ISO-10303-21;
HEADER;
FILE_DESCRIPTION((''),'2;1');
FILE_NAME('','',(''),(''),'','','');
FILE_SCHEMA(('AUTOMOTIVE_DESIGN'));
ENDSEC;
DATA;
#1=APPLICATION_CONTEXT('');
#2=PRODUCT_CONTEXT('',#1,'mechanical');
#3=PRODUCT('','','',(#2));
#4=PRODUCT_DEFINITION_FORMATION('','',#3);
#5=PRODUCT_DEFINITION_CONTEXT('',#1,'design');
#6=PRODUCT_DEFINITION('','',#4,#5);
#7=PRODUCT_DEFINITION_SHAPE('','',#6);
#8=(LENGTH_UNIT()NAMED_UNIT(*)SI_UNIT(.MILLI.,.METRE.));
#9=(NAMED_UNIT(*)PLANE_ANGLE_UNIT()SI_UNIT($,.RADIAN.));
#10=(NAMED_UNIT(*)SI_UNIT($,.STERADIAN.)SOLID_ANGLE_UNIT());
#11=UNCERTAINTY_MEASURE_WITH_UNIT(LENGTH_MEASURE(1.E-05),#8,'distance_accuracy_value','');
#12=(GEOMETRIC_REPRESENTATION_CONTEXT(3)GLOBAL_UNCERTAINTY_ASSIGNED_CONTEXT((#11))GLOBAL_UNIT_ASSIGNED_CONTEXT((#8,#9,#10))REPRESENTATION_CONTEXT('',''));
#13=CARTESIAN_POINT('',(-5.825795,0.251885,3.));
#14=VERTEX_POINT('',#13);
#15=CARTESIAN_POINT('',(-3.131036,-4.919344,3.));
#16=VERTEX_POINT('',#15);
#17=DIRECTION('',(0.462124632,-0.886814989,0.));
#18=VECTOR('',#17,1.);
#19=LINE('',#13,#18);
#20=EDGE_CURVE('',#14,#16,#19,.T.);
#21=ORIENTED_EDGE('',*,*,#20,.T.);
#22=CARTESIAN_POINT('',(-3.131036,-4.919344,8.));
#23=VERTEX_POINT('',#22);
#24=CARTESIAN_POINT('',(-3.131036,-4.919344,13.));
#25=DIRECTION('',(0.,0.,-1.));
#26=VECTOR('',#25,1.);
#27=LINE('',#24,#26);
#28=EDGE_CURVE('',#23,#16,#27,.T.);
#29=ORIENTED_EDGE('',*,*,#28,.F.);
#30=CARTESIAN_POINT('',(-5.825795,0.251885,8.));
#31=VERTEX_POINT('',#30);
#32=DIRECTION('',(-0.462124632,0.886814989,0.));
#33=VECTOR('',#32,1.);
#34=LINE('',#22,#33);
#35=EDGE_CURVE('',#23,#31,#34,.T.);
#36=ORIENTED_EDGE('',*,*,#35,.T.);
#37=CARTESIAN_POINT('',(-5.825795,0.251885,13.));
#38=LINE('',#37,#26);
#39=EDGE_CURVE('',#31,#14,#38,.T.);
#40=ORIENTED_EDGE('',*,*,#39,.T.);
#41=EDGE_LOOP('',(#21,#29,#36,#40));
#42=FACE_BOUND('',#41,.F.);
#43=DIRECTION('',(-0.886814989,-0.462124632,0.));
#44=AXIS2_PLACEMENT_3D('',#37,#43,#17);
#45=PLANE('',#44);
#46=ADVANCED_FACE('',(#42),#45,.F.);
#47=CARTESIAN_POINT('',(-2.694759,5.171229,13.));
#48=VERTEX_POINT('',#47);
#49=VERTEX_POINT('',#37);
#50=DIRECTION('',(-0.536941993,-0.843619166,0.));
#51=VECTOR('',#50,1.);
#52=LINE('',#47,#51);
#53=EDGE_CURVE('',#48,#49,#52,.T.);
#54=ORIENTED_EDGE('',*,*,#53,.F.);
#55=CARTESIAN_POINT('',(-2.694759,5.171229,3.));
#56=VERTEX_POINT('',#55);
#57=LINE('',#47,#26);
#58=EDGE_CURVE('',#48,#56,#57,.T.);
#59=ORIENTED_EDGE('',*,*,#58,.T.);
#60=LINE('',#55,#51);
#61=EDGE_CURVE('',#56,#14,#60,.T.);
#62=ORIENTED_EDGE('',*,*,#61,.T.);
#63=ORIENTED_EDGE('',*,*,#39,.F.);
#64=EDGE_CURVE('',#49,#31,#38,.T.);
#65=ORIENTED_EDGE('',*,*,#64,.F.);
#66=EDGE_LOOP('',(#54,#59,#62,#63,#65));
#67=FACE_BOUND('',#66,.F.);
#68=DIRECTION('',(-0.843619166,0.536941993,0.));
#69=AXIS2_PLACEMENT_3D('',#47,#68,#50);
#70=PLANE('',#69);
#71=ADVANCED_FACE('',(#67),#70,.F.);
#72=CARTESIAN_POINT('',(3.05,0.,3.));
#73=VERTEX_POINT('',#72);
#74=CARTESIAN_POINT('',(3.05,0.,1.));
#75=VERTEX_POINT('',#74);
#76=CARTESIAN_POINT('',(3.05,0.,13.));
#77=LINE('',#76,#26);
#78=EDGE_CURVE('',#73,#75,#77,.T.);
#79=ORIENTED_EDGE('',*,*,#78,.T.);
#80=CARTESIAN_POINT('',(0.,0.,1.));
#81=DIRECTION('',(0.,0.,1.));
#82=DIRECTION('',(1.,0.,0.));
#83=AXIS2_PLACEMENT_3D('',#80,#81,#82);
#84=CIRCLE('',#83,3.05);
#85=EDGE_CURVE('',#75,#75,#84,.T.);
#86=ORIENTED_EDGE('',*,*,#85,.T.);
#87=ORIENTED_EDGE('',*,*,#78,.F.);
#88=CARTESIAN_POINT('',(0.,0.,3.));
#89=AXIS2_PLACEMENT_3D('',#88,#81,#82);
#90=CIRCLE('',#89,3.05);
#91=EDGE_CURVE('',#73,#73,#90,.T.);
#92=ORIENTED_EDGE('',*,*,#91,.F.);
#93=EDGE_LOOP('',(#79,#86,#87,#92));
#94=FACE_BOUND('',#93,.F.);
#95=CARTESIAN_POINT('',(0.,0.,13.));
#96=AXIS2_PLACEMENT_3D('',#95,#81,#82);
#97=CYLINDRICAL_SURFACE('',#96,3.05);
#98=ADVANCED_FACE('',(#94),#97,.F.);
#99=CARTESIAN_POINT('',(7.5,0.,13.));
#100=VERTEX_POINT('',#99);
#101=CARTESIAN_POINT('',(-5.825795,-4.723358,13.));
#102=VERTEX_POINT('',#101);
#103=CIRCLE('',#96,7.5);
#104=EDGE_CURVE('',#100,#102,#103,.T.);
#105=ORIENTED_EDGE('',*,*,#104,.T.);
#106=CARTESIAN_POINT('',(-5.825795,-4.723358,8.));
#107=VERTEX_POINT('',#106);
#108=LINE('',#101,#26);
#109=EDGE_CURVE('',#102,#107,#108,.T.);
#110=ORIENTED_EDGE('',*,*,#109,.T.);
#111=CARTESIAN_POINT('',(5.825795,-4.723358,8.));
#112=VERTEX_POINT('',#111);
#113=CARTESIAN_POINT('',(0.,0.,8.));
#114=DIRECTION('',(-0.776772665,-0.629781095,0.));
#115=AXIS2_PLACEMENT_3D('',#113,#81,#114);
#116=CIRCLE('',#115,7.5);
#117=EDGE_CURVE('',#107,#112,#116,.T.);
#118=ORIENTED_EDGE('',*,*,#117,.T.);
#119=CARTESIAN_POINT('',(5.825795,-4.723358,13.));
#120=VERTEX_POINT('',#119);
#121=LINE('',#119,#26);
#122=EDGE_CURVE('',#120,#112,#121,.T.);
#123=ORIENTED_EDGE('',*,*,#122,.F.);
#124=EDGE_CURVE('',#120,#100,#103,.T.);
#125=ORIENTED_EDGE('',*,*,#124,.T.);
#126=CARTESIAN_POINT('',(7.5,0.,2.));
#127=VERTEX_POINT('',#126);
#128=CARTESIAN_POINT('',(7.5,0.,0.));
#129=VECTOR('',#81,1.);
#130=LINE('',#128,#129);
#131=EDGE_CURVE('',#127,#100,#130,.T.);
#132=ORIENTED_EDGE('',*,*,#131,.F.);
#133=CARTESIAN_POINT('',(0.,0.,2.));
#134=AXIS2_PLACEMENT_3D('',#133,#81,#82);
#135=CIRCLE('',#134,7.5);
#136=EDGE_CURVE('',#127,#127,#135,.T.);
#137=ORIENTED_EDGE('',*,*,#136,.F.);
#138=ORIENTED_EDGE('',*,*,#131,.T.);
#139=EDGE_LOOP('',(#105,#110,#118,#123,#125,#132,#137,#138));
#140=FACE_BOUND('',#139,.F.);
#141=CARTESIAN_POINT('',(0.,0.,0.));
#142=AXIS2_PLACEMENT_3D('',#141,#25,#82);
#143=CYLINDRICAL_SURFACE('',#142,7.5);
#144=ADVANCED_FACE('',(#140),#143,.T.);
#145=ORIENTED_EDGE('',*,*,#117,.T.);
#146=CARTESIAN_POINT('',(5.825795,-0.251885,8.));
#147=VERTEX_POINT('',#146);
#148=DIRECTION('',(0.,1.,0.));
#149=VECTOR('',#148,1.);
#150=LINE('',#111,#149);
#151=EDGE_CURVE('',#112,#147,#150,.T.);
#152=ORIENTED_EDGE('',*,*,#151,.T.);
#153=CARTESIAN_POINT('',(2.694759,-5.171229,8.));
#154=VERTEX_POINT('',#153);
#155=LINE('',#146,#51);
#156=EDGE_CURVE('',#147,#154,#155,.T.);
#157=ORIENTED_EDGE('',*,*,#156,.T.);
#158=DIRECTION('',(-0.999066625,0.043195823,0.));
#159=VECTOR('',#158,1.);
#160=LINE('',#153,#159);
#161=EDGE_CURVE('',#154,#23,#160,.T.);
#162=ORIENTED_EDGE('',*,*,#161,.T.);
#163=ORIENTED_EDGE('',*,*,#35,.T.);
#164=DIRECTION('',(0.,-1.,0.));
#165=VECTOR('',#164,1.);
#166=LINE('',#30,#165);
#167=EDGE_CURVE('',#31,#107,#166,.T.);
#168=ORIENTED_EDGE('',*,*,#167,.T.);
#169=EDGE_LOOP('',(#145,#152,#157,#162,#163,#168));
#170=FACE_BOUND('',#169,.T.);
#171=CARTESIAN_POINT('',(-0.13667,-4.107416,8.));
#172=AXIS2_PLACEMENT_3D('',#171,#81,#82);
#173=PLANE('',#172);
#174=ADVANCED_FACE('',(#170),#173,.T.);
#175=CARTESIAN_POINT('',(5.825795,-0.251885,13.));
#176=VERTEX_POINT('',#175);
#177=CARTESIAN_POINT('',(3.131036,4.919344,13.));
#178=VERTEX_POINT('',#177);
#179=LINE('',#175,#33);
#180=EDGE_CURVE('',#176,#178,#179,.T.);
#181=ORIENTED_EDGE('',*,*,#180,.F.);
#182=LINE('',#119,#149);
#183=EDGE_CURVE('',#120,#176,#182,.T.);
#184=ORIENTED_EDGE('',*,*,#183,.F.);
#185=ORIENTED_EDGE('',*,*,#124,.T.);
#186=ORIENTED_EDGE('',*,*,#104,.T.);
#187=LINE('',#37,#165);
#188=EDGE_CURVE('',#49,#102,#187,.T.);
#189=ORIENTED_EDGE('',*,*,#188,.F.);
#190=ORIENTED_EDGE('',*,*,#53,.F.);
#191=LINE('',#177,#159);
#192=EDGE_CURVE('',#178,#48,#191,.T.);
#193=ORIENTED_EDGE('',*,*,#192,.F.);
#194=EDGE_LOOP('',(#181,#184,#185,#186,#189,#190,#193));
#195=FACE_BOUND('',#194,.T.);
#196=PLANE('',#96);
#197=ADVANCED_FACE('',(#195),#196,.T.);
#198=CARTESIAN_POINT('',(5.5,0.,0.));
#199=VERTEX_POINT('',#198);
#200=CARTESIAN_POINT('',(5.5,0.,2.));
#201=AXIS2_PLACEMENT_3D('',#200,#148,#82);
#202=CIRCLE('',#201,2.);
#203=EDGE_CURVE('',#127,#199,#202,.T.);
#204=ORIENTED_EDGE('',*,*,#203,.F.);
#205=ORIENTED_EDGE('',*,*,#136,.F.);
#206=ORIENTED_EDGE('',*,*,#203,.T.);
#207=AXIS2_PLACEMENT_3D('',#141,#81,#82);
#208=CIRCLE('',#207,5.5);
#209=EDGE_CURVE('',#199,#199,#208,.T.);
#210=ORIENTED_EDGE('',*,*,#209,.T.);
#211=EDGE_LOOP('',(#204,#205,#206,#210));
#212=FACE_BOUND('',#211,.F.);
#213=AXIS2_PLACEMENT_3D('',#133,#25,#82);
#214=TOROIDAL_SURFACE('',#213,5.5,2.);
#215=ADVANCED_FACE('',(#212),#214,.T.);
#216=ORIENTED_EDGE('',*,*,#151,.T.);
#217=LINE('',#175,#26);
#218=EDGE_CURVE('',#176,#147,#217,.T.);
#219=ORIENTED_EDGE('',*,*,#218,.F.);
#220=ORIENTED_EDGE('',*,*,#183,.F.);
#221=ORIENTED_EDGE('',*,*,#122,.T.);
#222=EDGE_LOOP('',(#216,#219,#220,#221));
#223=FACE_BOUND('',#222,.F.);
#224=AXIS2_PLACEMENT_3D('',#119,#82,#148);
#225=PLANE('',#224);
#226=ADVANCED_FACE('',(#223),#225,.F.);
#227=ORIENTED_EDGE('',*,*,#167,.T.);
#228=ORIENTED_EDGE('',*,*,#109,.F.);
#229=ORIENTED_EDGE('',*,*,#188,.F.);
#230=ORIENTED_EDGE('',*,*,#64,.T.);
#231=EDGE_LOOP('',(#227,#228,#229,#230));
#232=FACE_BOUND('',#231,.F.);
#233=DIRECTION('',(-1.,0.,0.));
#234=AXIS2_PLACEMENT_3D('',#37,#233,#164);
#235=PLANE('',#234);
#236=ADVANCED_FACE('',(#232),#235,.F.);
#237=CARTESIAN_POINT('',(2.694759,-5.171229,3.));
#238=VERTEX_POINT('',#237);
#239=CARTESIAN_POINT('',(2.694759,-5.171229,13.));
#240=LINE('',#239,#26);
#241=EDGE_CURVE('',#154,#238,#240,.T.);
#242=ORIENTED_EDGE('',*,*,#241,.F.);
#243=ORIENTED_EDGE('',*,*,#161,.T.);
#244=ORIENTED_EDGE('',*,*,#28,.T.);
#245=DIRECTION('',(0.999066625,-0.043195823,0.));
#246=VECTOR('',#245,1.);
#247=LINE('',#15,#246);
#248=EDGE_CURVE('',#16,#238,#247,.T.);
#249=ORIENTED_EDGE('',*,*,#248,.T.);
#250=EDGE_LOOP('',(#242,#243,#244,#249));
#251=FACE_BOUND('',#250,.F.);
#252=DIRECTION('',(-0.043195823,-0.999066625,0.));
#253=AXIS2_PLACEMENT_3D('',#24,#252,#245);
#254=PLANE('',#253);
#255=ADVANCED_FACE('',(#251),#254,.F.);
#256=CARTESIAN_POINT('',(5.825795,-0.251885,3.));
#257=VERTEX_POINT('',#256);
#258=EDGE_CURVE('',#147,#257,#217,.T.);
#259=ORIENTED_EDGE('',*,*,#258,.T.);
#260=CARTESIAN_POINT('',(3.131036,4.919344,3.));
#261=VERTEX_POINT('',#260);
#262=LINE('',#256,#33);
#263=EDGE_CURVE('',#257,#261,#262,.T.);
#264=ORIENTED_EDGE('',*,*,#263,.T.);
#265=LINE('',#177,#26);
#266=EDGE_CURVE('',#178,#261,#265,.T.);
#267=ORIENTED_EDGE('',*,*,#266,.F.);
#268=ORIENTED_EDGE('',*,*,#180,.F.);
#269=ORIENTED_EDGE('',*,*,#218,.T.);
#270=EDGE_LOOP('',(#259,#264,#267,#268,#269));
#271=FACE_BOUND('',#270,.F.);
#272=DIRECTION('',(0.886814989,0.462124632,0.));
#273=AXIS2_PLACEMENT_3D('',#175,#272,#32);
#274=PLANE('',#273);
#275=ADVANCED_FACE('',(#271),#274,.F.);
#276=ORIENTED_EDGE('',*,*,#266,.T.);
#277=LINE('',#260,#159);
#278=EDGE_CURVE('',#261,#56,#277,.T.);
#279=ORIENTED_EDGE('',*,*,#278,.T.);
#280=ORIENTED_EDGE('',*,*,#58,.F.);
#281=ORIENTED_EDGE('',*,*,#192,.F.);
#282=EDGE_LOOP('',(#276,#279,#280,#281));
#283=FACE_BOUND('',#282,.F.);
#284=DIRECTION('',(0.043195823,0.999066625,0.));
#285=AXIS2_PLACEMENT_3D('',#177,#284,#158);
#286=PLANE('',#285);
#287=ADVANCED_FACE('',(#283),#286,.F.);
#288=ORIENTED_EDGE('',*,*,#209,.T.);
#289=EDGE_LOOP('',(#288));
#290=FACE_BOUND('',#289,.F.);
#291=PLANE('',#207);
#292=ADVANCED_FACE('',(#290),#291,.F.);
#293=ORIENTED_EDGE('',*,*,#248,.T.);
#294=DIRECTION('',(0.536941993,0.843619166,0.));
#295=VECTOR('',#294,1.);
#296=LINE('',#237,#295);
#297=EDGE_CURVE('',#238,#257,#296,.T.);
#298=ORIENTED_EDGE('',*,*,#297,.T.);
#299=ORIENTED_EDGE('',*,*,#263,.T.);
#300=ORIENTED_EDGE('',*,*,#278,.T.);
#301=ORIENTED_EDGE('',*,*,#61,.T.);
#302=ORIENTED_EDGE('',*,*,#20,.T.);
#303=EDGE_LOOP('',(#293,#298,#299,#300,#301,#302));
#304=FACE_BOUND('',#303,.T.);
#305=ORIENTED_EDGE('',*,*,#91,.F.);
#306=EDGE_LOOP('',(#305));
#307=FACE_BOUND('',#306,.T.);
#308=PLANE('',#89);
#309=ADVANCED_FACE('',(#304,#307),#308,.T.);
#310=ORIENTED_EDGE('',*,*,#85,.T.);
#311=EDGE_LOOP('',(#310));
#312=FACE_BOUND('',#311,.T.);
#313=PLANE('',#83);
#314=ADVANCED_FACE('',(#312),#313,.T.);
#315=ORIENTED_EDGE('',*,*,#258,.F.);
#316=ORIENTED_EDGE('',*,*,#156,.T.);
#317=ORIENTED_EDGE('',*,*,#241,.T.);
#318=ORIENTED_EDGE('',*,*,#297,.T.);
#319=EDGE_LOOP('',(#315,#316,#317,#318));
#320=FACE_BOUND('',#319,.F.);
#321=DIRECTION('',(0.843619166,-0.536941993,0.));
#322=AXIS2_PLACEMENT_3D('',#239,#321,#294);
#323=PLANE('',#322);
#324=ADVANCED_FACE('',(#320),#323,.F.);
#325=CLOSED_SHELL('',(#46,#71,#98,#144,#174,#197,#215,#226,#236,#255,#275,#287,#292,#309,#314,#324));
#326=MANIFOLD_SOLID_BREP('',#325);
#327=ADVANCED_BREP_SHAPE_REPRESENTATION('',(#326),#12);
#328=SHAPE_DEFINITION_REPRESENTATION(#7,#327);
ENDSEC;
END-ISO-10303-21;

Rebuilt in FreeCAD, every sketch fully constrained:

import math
import FreeCAD as App
import Part
import Sketcher
from FreeCAD import Vector
Q = App.Units.Quantity


def edges_at(feature, points):
    """Names of the edges that pass closest to the given points."""
    edges = feature.Shape.Edges
    near = lambda p: min(range(len(edges)), key=lambda i: edges[i].distToShape(Part.Vertex(*p))[0])
    return sorted({f"Edge{near(p) + 1}" for p in points})


def add_polygon(sketch, points):
    """Adds a closed chain of lines whose ends are joined by coincident constraints."""
    first, n = sketch.GeometryCount, len(points)
    for a, b in zip(points, points[1:] + points[:1]):
        sketch.addGeometry(Part.LineSegment(App.Vector(*a, 0), App.Vector(*b, 0)), False)
    for i in range(n):
        sketch.addConstraint(Sketcher.Constraint("Coincident", first + i, 2, first + (i + 1) % n, 1))

doc = App.newDocument("Part")
body = doc.addObject("PartDesign::Body", "Body")

sketch1 = body.newObject("Sketcher::SketchObject", "Sketch")
sketch1.AttachmentSupport = (doc.getObject("XY_Plane"), [""])
sketch1.MapMode = "FlatFace"
sketch1.addGeometry(Part.Circle(Vector(0, 0, 0), Vector(0, 0, 1), 7.5), False)
sketch1.addConstraint([
    Sketcher.Constraint("Coincident", 0, 3, -1, 1),
    Sketcher.Constraint("Diameter", 0, Q("15 mm")),
])
pad1 = body.newObject("PartDesign::Pad", "Pad")
pad1.Profile = sketch1
pad1.Length = 13

sketch2 = body.newObject("Sketcher::SketchObject", "Sketch001")
sketch2.AttachmentSupport = (doc.getObject("XY_Plane"), [""])
sketch2.MapMode = "FlatFace"
sketch2.AttachmentOffset = App.Placement(Vector(0, 0, 13), App.Rotation())
sketch2.addGeometry(Part.Circle(Vector(0, 0, 0), Vector(0, 0, 1), 3.05), False)
sketch2.addConstraint([
    Sketcher.Constraint("Coincident", 0, 3, -1, 1),
    Sketcher.Constraint("Diameter", 0, Q("6.1 mm")),
])
pocket1 = body.newObject("PartDesign::Pocket", "Pocket")
pocket1.Profile = sketch2
pocket1.Length = 12

sketch3 = body.newObject("Sketcher::SketchObject", "Sketch002")
sketch3.AttachmentSupport = (doc.getObject("XY_Plane"), [""])
sketch3.MapMode = "FlatFace"
sketch3.AttachmentOffset = App.Placement(Vector(0, 0, 13), App.Rotation())
add_polygon(sketch3, [(5.825795, -0.251885), (3.131036, 4.919344), (-2.694759, 5.171229), (-5.825795, 0.251885), (-3.131036, -4.919344), (2.694759, -5.171229)])
sketch3.addGeometry(Part.Circle(Vector(0, 0, 0), Vector(0, 0, 1), 3.05), False)
sketch3.addConstraint([
    Sketcher.Constraint("Coincident", 6, 3, -1, 1),
    Sketcher.Constraint("Symmetric", 0, 2, 3, 2, -1, 1),
    Sketcher.Constraint("Symmetric", 1, 2, 4, 2, -1, 1),
    Sketcher.Constraint("Symmetric", 2, 2, 5, 2, -1, 1),
    Sketcher.Constraint("Equal", 0, 1),
    Sketcher.Constraint("Equal", 1, 2),
    Sketcher.Constraint("Diameter", 6, Q("6.1 mm")),
    Sketcher.Constraint("DistanceX", 1, 2, -1, 1, Q("2.694759 mm")),
    Sketcher.Constraint("DistanceY", -1, 1, 1, 2, Q("5.171229 mm")),
    Sketcher.Constraint("DistanceX", 2, 2, 0, 2, Q("8.956831 mm")),
    Sketcher.Constraint("DistanceY", 2, 2, 0, 2, Q("4.667459 mm")),
])
pocket2 = body.newObject("PartDesign::Pocket", "Pocket001")
pocket2.Profile = sketch3
pocket2.Length = 10

sketch4 = body.newObject("Sketcher::SketchObject", "Sketch003")
sketch4.AttachmentSupport = (doc.getObject("XY_Plane"), [""])
sketch4.MapMode = "FlatFace"
sketch4.AttachmentOffset = App.Placement(Vector(0, 0, 13), App.Rotation())
sketch4.addGeometry([
    Part.LineSegment(Vector(-3.131036, -4.919344, 0), Vector(-5.825795, 0.251885, 0)),
    Part.LineSegment(Vector(-5.825795, 0.251885, 0), Vector(-5.825795, -4.723358, 0)),
    Part.ArcOfCircle(Part.Circle(Vector(0, 0, 0), Vector(0, 0, 1), 7.5), math.radians(-140.966026), math.radians(-39.033974)),
    Part.LineSegment(Vector(5.825795, -4.723358, 0), Vector(5.825795, -0.251885, 0)),
    Part.LineSegment(Vector(5.825795, -0.251885, 0), Vector(2.694759, -5.171229, 0)),
    Part.LineSegment(Vector(2.694759, -5.171229, 0), Vector(-3.131036, -4.919344, 0)),
], False)
sketch4.addConstraint([
    Sketcher.Constraint("Coincident", 0, 2, 1, 1),
    Sketcher.Constraint("Coincident", 1, 2, 2, 1),
    Sketcher.Constraint("Coincident", 2, 2, 3, 1),
    Sketcher.Constraint("Coincident", 3, 2, 4, 1),
    Sketcher.Constraint("Coincident", 4, 2, 5, 1),
    Sketcher.Constraint("Coincident", 5, 2, 0, 1),
    Sketcher.Constraint("Vertical", 1),
    Sketcher.Constraint("Vertical", 3),
    Sketcher.Constraint("Coincident", 2, 3, -1, 1),
    Sketcher.Constraint("Symmetric", 0, 2, 3, 2, -1, 1),
    Sketcher.Constraint("Equal", 0, 4),
    Sketcher.Constraint("Equal", 4, 5),
    Sketcher.Constraint("Radius", 2, Q("7.5 mm")),
    Sketcher.Constraint("DistanceY", 1, 2, 1, 1, Q("4.975243 mm")),
    Sketcher.Constraint("DistanceY", 3, 1, 3, 2, Q("4.471473 mm")),
    Sketcher.Constraint("DistanceX", -1, 1, 4, 2, Q("2.694759 mm")),
    Sketcher.Constraint("DistanceY", 4, 2, -1, 1, Q("5.171229 mm")),
])
pocket3 = body.newObject("PartDesign::Pocket", "Pocket002")
pocket3.Profile = sketch4
pocket3.Length = 5
doc.recompute()

fillet = body.newObject("PartDesign::Fillet", "Fillet")
fillet.Base = (pocket3, edges_at(pocket3, [(-7.5, 0, 0)]))
fillet.Radius = 2

doc.recompute()
